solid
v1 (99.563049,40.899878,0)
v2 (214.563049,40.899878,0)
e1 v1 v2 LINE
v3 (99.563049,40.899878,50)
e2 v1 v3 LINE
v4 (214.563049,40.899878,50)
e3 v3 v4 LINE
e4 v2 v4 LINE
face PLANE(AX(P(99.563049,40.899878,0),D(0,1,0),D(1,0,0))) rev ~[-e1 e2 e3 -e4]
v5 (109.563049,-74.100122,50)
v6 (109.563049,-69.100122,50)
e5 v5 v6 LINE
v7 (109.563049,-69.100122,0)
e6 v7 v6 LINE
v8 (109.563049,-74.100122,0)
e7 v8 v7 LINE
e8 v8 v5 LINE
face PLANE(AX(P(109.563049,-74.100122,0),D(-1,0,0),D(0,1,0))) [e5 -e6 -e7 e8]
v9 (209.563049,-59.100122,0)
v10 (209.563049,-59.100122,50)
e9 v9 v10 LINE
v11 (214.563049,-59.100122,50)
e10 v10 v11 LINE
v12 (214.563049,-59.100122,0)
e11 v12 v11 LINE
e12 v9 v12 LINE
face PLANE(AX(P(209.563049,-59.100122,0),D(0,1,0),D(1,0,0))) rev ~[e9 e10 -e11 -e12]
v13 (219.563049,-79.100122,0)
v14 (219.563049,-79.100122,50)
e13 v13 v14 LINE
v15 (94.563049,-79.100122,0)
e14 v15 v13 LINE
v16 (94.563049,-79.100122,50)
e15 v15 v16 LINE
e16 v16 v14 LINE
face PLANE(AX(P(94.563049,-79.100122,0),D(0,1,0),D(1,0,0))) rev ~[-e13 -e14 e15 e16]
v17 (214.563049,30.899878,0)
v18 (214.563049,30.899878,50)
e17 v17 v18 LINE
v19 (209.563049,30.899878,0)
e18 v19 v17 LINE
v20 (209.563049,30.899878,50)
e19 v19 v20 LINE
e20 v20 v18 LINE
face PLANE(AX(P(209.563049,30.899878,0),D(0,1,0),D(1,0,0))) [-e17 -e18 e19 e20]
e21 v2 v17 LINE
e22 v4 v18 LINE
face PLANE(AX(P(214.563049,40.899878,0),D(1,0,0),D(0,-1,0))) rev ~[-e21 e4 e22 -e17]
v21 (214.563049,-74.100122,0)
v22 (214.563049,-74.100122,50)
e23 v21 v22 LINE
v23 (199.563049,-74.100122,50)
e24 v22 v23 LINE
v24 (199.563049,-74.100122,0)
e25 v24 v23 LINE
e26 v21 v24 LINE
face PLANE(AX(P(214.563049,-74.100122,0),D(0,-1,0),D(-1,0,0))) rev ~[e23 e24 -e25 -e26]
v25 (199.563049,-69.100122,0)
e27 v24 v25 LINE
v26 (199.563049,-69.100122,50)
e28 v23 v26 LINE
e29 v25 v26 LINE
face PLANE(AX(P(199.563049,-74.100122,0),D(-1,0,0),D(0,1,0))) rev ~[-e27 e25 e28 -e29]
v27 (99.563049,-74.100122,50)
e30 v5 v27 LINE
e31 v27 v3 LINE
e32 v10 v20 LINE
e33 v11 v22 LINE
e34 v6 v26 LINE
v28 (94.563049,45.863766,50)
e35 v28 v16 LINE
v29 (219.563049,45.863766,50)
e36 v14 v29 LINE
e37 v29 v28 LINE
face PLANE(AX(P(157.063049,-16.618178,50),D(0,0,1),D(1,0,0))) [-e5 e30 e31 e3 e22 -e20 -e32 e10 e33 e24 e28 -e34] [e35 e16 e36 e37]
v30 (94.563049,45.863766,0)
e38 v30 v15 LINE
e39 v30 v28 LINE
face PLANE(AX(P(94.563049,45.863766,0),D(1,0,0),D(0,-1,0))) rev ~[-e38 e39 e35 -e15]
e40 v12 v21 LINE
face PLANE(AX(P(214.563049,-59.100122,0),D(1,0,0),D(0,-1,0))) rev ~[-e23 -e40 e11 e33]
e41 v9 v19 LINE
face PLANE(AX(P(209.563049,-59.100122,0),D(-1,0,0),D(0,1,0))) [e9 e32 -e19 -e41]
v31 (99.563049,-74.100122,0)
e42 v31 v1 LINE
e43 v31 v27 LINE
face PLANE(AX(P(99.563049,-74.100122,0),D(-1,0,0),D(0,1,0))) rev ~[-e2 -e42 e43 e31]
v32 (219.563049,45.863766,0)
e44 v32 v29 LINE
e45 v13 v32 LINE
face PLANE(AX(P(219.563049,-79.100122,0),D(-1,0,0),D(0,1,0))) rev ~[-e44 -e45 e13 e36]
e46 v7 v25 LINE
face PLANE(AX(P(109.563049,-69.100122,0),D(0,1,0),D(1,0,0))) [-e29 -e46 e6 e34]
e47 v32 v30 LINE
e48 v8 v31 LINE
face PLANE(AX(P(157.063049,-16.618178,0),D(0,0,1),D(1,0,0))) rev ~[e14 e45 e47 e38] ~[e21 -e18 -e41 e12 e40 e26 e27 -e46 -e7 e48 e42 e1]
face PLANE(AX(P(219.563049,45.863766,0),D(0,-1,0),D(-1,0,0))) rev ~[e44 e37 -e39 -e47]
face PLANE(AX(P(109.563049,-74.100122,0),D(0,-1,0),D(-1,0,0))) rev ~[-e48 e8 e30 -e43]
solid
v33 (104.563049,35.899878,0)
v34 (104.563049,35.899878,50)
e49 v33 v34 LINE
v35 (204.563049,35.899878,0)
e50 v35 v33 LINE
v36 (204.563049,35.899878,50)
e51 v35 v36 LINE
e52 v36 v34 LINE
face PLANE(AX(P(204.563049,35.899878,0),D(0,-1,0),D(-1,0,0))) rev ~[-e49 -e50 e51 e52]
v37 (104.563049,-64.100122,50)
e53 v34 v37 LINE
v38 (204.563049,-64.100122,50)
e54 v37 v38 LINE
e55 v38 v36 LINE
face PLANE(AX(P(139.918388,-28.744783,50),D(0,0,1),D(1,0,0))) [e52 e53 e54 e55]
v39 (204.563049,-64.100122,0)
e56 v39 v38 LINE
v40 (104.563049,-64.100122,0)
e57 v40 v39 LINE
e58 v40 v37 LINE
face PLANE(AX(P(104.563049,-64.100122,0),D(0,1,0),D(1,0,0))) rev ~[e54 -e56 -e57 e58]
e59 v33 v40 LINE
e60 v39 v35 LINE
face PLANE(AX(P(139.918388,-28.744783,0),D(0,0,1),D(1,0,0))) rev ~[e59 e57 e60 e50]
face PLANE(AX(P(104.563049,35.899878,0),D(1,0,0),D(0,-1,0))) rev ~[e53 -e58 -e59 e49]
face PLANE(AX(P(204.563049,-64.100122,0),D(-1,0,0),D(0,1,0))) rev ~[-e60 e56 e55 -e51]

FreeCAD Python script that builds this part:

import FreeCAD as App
import Part
import Sketcher

V = App.Vector

doc = App.newDocument("Part")
params = doc.addObject("Spreadsheet::Sheet", "Params")
for row, (alias, value) in enumerate([
    ("sketch1_width", "100 mm"),
    ("pad1_length", "50 mm"),
    ("sketch2_width", "125 mm"),
    ("sketch2_width2", "15 mm"),
    ("sketch2_width3", "90 mm"),
    ("sketch2_width4", "10 mm"),
    ("sketch2_width5", "5 mm"),
    ("pad2_length", "50 mm"),
], start=1):
    params.set(f"A{row}", alias)
    params.set(f"B{row}", "=" + value)
    params.setAlias(f"B{row}", alias)

body = doc.addObject("PartDesign::Body", "Body")

sketch1 = doc.addObject("Sketcher::SketchObject", "Sketch")
body.addObject(sketch1)
sketch1.AttachmentSupport = (doc.XY_Plane, [""])
sketch1.MapMode = "FlatFace"
sketch1.addGeometry([
    Part.LineSegment(V(105, 36, 0), V(105, -64, 0)),
    Part.LineSegment(V(105, -64, 0), V(205, -64, 0)),
    Part.LineSegment(V(205, -64, 0), V(205, 36, 0)),
    Part.LineSegment(V(205, 36, 0), V(105, 36, 0)),
], False)
sketch1.addConstraint([
    Sketcher.Constraint("Coincident", 0, 2, 1, 1),
    Sketcher.Constraint("Coincident", 1, 2, 2, 1),
    Sketcher.Constraint("Coincident", 2, 2, 3, 1),
    Sketcher.Constraint("Coincident", 3, 2, 0, 1),
    Sketcher.Constraint("Vertical", 0),
    Sketcher.Constraint("Horizontal", 1),
    Sketcher.Constraint("Vertical", 2),
    Sketcher.Constraint("Horizontal", 3),
    Sketcher.Constraint("Equal", 3, 0),
    Sketcher.Constraint("DistanceX", 1, 1, 1, 2, 100.0),
    Sketcher.Constraint("DistanceX", -1, 1, 0, 2, 104.563049),
    Sketcher.Constraint("DistanceY", 0, 2, -1, 1, 64.100122),
])
sketch1.setExpression("Constraints[9]", "Params.sketch1_width")
pad1 = doc.addObject("PartDesign::Pad", "Pad")
body.addObject(pad1)
pad1.Profile = sketch1
pad1.setExpression("Length", "Params.pad1_length")
body2 = doc.addObject("PartDesign::Body", "Body001")

sketch2 = doc.addObject("Sketcher::SketchObject", "Sketch001")
body2.addObject(sketch2)
sketch2.AttachmentSupport = (doc.getObject("XY_Plane001"), [""])
sketch2.MapMode = "FlatFace"
sketch2.addGeometry([
    Part.LineSegment(V(95, -79, 0), V(220, -79, 0)),
    Part.LineSegment(V(220, -79, 0), V(220, 46, 0)),
    Part.LineSegment(V(220, 46, 0), V(95, 46, 0)),
    Part.LineSegment(V(95, 46, 0), V(95, -79, 0)),
    Part.LineSegment(V(215, -74, 0), V(200, -74, 0)),
    Part.LineSegment(V(200, -74, 0), V(200, -69, 0)),
    Part.LineSegment(V(200, -69, 0), V(110, -69, 0)),
    Part.LineSegment(V(110, -69, 0), V(110, -74, 0)),
    Part.LineSegment(V(110, -74, 0), V(100, -74, 0)),
    Part.LineSegment(V(100, -74, 0), V(100, 41, 0)),
    Part.LineSegment(V(100, 41, 0), V(215, 41, 0)),
    Part.LineSegment(V(215, 41, 0), V(215, 31, 0)),
    Part.LineSegment(V(215, 31, 0), V(210, 31, 0)),
    Part.LineSegment(V(210, 31, 0), V(210, -59, 0)),
    Part.LineSegment(V(210, -59, 0), V(215, -59, 0)),
    Part.LineSegment(V(215, -59, 0), V(215, -74, 0)),
], False)
sketch2.addConstraint([
    Sketcher.Constraint("Coincident", 0, 2, 1, 1),
    Sketcher.Constraint("Coincident", 1, 2, 2, 1),
    Sketcher.Constraint("Coincident", 2, 2, 3, 1),
    Sketcher.Constraint("Coincident", 3, 2, 0, 1),
    Sketcher.Constraint("Coincident", 4, 2, 5, 1),
    Sketcher.Constraint("Coincident", 5, 2, 6, 1),
    Sketcher.Constraint("Coincident", 6, 2, 7, 1),
    Sketcher.Constraint("Coincident", 7, 2, 8, 1),
    Sketcher.Constraint("Coincident", 8, 2, 9, 1),
    Sketcher.Constraint("Coincident", 9, 2, 10, 1),
    Sketcher.Constraint("Coincident", 10, 2, 11, 1),
    Sketcher.Constraint("Coincident", 11, 2, 12, 1),
    Sketcher.Constraint("Coincident", 12, 2, 13, 1),
    Sketcher.Constraint("Coincident", 13, 2, 14, 1),
    Sketcher.Constraint("Coincident", 14, 2, 15, 1),
    Sketcher.Constraint("Coincident", 15, 2, 4, 1),
    Sketcher.Constraint("Horizontal", 0),
    Sketcher.Constraint("Vertical", 1),
    Sketcher.Constraint("Horizontal", 2),
    Sketcher.Constraint("Vertical", 3),
    Sketcher.Constraint("Horizontal", 4),
    Sketcher.Constraint("Vertical", 5),
    Sketcher.Constraint("Horizontal", 6),
    Sketcher.Constraint("Vertical", 7),
    Sketcher.Constraint("Horizontal", 8),
    Sketcher.Constraint("Vertical", 9),
    Sketcher.Constraint("Horizontal", 10),
    Sketcher.Constraint("Vertical", 11),
    Sketcher.Constraint("Horizontal", 12),
    Sketcher.Constraint("Vertical", 13),
    Sketcher.Constraint("Horizontal", 14),
    Sketcher.Constraint("Vertical", 15),
    Sketcher.Constraint("Horizontal", 4, 2, 7, 2),
    Sketcher.Constraint("Vertical", 11, 2, 14, 2),
    Sketcher.Constraint("Equal", 14, 5),
    Sketcher.Constraint("Equal", 10, 9),
    Sketcher.Constraint("Equal", 8, 11),
    Sketcher.Constraint("Equal", 6, 13),
    Sketcher.Constraint("DistanceX", 0, 1, 0, 2, 125.0),
    Sketcher.Constraint("DistanceX", 4, 2, 4, 1, 15.0),
    Sketcher.Constraint("DistanceX", 6, 2, 6, 1, 90.0),
    Sketcher.Constraint("DistanceX", 8, 2, 8, 1, 10.0),
    Sketcher.Constraint("DistanceX", 12, 2, 12, 1, 5.0),
    Sketcher.Constraint("DistanceX", 4, 2, 0, 2, 20.0),
    Sketcher.Constraint("DistanceY", 0, 2, 4, 2, 5.0),
    Sketcher.Constraint("DistanceY", 1, 1, 1, 2, 124.963888),
    Sketcher.Constraint("DistanceX", -1, 1, 0, 2, 219.563049),
    Sketcher.Constraint("DistanceY", 0, 2, -1, 1, 79.100122),
])
sketch2.setExpression("Constraints[38]", "Params.sketch2_width")
sketch2.setExpression("Constraints[39]", "Params.sketch2_width2")
sketch2.setExpression("Constraints[40]", "Params.sketch2_width3")
sketch2.setExpression("Constraints[41]", "Params.sketch2_width4")
sketch2.setExpression("Constraints[42]", "Params.sketch2_width5")
pad2 = doc.addObject("PartDesign::Pad", "Pad001")
body2.addObject(pad2)
pad2.Profile = sketch2
pad2.setExpression("Length", "Params.pad2_length")

doc.recompute()
